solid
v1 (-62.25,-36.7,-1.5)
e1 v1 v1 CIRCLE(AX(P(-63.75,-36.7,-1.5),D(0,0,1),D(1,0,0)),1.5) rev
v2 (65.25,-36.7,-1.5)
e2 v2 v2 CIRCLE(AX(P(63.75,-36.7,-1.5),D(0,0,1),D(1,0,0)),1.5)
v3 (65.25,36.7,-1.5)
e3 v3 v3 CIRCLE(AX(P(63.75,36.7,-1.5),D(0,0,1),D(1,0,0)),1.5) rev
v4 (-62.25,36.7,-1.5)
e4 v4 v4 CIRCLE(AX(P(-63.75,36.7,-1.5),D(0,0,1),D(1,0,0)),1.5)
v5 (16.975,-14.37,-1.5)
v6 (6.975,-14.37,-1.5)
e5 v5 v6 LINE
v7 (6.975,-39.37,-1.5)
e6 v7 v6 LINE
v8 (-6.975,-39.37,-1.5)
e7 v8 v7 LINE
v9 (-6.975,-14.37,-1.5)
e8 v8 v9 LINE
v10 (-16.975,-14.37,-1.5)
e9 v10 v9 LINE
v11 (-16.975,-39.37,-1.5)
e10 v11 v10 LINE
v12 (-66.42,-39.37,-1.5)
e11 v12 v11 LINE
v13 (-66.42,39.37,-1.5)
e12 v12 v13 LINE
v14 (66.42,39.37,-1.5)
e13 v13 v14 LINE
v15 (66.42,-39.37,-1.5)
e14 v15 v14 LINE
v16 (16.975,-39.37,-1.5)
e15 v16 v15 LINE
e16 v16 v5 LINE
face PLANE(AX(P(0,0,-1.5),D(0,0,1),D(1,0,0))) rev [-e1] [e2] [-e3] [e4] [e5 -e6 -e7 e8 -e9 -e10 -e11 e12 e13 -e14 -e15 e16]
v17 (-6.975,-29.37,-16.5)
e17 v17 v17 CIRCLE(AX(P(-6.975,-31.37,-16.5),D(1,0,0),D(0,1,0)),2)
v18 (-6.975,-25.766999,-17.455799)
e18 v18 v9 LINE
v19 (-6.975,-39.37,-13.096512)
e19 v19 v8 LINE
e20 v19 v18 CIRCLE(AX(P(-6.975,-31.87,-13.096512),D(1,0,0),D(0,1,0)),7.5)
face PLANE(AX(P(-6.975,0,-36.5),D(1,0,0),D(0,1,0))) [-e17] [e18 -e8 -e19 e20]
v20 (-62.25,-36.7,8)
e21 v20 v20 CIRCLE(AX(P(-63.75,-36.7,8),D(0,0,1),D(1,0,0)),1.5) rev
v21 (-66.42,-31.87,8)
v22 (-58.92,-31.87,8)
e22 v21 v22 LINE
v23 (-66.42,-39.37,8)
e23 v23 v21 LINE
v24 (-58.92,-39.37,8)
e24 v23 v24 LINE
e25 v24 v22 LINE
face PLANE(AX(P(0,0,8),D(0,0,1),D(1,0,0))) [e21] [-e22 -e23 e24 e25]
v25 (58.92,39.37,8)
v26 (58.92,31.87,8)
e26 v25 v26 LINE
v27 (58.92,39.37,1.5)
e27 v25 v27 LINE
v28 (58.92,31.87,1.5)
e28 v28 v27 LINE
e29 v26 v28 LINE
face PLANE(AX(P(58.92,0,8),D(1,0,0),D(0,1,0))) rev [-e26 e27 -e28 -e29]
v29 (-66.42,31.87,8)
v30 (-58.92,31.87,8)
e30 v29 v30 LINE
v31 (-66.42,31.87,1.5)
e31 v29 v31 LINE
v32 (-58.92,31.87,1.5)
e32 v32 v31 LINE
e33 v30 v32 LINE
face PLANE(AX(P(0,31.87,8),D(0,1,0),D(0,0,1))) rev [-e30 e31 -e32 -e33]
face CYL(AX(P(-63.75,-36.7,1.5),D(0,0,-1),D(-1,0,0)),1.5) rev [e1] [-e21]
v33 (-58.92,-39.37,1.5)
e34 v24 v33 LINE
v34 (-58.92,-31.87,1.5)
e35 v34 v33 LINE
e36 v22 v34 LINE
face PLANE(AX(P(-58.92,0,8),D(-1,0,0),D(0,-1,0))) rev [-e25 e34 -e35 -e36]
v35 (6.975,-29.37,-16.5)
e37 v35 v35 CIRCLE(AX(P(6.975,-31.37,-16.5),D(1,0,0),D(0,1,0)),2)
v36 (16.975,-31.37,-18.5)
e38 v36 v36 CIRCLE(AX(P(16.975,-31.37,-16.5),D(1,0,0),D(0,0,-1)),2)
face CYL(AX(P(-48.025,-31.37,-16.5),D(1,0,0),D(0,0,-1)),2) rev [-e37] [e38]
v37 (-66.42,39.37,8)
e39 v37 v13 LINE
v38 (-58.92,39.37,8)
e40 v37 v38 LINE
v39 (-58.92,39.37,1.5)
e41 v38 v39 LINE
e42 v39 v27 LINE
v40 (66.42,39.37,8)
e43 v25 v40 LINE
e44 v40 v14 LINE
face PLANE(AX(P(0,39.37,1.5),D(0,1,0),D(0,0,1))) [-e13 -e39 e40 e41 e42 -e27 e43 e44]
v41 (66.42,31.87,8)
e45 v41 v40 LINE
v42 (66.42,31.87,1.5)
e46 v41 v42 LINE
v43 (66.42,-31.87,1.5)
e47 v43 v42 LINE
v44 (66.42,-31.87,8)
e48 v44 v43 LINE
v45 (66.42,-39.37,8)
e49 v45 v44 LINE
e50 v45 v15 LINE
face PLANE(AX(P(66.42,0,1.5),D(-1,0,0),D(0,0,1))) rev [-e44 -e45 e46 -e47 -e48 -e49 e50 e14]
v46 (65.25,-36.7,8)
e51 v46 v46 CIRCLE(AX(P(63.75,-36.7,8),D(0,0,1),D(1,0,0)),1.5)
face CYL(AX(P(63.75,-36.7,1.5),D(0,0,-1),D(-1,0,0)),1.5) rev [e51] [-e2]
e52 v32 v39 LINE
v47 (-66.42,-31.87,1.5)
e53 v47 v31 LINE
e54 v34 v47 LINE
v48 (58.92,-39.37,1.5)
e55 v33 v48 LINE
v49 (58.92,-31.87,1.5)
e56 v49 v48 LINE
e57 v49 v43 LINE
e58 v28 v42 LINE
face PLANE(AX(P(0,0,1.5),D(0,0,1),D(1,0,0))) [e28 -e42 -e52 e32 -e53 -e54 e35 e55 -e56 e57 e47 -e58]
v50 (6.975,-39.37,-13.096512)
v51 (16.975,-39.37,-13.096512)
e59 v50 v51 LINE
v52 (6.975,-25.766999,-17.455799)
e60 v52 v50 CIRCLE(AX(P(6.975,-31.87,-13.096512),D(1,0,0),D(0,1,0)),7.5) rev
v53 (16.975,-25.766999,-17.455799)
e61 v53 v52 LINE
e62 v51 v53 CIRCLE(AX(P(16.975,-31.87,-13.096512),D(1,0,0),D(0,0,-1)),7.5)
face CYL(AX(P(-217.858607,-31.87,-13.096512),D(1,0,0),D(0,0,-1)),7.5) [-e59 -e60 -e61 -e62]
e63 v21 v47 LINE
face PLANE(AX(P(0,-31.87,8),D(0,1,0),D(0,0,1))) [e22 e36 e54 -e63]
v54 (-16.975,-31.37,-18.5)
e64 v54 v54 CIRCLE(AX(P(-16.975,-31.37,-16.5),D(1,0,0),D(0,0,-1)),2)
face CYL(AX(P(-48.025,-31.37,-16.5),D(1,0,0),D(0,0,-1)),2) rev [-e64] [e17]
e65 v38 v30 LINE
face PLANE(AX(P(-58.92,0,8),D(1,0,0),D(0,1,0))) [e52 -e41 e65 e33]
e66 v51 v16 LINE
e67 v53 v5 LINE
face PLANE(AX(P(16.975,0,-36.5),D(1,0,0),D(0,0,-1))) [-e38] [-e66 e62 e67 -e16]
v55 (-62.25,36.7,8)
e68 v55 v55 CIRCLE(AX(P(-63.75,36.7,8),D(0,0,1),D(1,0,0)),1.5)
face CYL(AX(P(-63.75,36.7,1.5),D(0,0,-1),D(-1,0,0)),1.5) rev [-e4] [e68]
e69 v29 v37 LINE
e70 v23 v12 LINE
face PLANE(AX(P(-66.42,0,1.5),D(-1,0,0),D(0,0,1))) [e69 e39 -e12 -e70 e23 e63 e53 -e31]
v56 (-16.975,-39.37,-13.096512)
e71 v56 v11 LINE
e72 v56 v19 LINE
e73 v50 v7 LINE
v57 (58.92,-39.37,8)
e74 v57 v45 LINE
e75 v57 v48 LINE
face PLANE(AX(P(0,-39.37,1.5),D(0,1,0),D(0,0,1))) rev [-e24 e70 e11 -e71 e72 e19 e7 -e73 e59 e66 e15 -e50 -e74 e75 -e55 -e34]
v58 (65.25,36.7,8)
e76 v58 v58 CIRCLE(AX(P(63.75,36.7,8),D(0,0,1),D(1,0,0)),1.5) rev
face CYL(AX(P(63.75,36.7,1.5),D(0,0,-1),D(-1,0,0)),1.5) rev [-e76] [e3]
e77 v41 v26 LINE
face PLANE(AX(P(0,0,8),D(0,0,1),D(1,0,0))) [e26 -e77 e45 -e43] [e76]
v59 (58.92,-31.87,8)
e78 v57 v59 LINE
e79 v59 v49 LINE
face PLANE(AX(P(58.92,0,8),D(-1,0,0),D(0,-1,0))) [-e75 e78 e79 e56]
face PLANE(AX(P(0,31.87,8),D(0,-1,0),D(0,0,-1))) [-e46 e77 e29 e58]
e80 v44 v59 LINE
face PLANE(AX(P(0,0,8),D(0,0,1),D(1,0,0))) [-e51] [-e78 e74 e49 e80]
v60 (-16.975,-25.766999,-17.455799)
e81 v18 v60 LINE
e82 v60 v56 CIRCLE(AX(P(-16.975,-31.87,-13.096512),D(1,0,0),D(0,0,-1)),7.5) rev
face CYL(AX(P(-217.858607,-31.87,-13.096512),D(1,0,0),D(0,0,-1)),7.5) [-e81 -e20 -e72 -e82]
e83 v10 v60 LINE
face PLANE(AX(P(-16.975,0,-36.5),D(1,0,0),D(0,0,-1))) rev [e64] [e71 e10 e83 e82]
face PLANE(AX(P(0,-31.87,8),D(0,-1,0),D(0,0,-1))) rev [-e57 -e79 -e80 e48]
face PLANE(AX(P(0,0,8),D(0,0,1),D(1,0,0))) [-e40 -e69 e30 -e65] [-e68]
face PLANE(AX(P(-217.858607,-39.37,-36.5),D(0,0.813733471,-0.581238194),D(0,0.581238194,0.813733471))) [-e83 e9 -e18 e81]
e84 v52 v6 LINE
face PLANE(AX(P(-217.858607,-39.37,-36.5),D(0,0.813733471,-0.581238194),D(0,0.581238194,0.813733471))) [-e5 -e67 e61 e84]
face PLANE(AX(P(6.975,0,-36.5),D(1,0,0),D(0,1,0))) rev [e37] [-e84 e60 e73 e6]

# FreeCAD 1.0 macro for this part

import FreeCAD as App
import Part
import Sketcher

V = App.Vector
Q = App.Units.Quantity


def edges_at(feature, points):
    """Names of the edges that pass closest to the given points."""
    edges = feature.Shape.Edges
    near = lambda p: min(range(len(edges)), key=lambda i: edges[i].distToShape(Part.Vertex(*p))[0])
    return sorted({f"Edge{near(p) + 1}" for p in points})


def add_polygon(sketch, points):
    """Adds a closed chain of lines whose ends are joined by coincident constraints."""
    first, n = sketch.GeometryCount, len(points)
    for a, b in zip(points, points[1:] + points[:1]):
        sketch.addGeometry(Part.LineSegment(App.Vector(*a, 0), App.Vector(*b, 0)), False)
    for i in range(n):
        sketch.addConstraint(Sketcher.Constraint("Coincident", first + i, 2, first + (i + 1) % n, 1))

doc = App.newDocument("Part")
params = doc.addObject("Spreadsheet::Sheet", "Params")
for row, (alias, value) in enumerate([
    ("sketch1_diameter", "3 mm"),
    ("sketch1_width", "132.84 mm"),
    ("sketch1_height", "78.74 mm"),
    ("pad1_length", "3 mm"),
    ("sketch2_diameter", "3 mm"),
    ("sketch2_width", "7.5 mm"),
    ("pad2_length", "8 mm"),
    ("sketch3_width", "10 mm"),
    ("sketch3_height", "25 mm"),
    ("pad3_length", "35 mm"),
    ("sketch4_width", "25 mm"),
    ("sketch4_height", "35 mm"),
    ("sketch5_diameter", "4 mm"),
    ("pocket2_length", "65 mm"),
    ("fillet_radius", "7.5 mm"),
], start=1):
    params.set(f"A{row}", alias)
    params.set(f"B{row}", "=" + value)
    params.setAlias(f"B{row}", alias)

body = doc.addObject("PartDesign::Body", "Body")

# Sketch on XY plane
sketch1 = body.newObject("Sketcher::SketchObject", "Sketch")
sketch1.AttachmentSupport = (doc.getObject("XY_Plane"), [""])
sketch1.MapMode = "FlatFace"
add_polygon(sketch1, [(66.4, -39.4), (66.4, 39.4), (-66.4, 39.4), (-66.4, -39.4)])  # lines 0-3
sketch1.addGeometry(Part.Circle(V(-63.8, -36.7, 0), V(0, 0, 1), 1.5), False)  # 4
sketch1.addGeometry(Part.Circle(V(63.8, -36.7, 0), V(0, 0, 1), 1.5), False)  # 5
sketch1.addGeometry(Part.Circle(V(63.8, 36.7, 0), V(0, 0, 1), 1.5), False)  # 6
sketch1.addGeometry(Part.Circle(V(-63.8, 36.7, 0), V(0, 0, 1), 1.5), False)  # 7
sketch1.addConstraint([
    Sketcher.Constraint("Vertical", 0),
    Sketcher.Constraint("Horizontal", 1),
    Sketcher.Constraint("Vertical", 2),
    Sketcher.Constraint("Horizontal", 3),
    Sketcher.Constraint("Equal", 4, 5),
    Sketcher.Constraint("Equal", 5, 6),
    Sketcher.Constraint("Equal", 6, 7),
    Sketcher.Constraint("Symmetric", 4, 3, 6, 3, -1, 1),
    Sketcher.Constraint("Symmetric", 5, 3, 7, 3, -1, 1),
    Sketcher.Constraint("Symmetric", 0, 2, 2, 2, -1, 1),
    Sketcher.Constraint("Symmetric", 4, 3, 5, 3, -2),
    Sketcher.Constraint("Diameter", 4, Q("3 mm")),
    Sketcher.Constraint("DistanceX", 1, 2, 1, 1, Q("132.84 mm")),
    Sketcher.Constraint("DistanceY", 0, 1, 0, 2, Q("78.74 mm")),
    Sketcher.Constraint("DistanceY", 4, 3, -1, 1, Q("36.7 mm")),
    Sketcher.Constraint("DistanceX", 4, 3, 5, 3, Q("127.5 mm")),
])
sketch1.setExpression("Constraints[15]", "Params.sketch1_diameter")
sketch1.setExpression("Constraints[16]", "Params.sketch1_width")
sketch1.setExpression("Constraints[17]", "Params.sketch1_height")
pad1 = body.newObject("PartDesign::Pad", "Pad")
pad1.Profile = sketch1
pad1.setExpression("Length", "Params.pad1_length")
pad1.Midplane = True

# Sketch on XY plane
sketch2 = body.newObject("Sketcher::SketchObject", "Sketch001")
sketch2.AttachmentSupport = (doc.getObject("XY_Plane"), [""])
sketch2.MapMode = "FlatFace"
add_polygon(sketch2, [(-66.4, -31.9), (-66.4, -39.4), (-58.9, -39.4), (-58.9, -31.9)])  # lines 0-3
sketch2.addGeometry(Part.Circle(V(-63.8, -36.7, 0), V(0, 0, 1), 1.5), False)  # 4
add_polygon(sketch2, [(-66.4, 39.4), (-66.4, 31.9), (-58.9, 31.9), (-58.9, 39.4)])  # lines 5-8
sketch2.addGeometry(Part.Circle(V(-63.8, 36.7, 0), V(0, 0, 1), 1.5), False)  # 9
add_polygon(sketch2, [(58.9, 39.4), (58.9, 31.9), (66.4, 31.9), (66.4, 39.4)])  # lines 10-13
sketch2.addGeometry(Part.Circle(V(63.8, 36.7, 0), V(0, 0, 1), 1.5), False)  # 14
add_polygon(sketch2, [(58.9, -31.9), (58.9, -39.4), (66.4, -39.4), (66.4, -31.9)])  # lines 15-18
sketch2.addGeometry(Part.Circle(V(63.8, -36.7, 0), V(0, 0, 1), 1.5), False)  # 19
sketch2.addConstraint([
    Sketcher.Constraint("Vertical", 0),
    Sketcher.Constraint("Horizontal", 1),
    Sketcher.Constraint("Vertical", 2),
    Sketcher.Constraint("Horizontal", 3),
    Sketcher.Constraint("Vertical", 5),
    Sketcher.Constraint("Horizontal", 6),
    Sketcher.Constraint("Vertical", 7),
    Sketcher.Constraint("Horizontal", 8),
    Sketcher.Constraint("Vertical", 10),
    Sketcher.Constraint("Horizontal", 11),
    Sketcher.Constraint("Vertical", 12),
    Sketcher.Constraint("Horizontal", 13),
    Sketcher.Constraint("Vertical", 15),
    Sketcher.Constraint("Horizontal", 16),
    Sketcher.Constraint("Vertical", 17),
    Sketcher.Constraint("Horizontal", 18),
    Sketcher.Constraint("Equal", 4, 9),
    Sketcher.Constraint("Equal", 9, 14),
    Sketcher.Constraint("Equal", 14, 19),
    Sketcher.Constraint("Symmetric", 4, 3, 14, 3, -1, 1),
    Sketcher.Constraint("Symmetric", 9, 3, 19, 3, -1, 1),
    Sketcher.Constraint("Symmetric", 2, 2, 10, 2, -1, 1),
    Sketcher.Constraint("Symmetric", 0, 2, 12, 2, -1, 1),
    Sketcher.Constraint("Symmetric", 7, 2, 15, 2, -1, 1),
    Sketcher.Constraint("Symmetric", 5, 2, 17, 2, -1, 1),
    Sketcher.Constraint("Symmetric", 9, 3, 14, 3, -2),
    Sketcher.Constraint("Symmetric", 6, 2, 10, 2, -2),
    Sketcher.Constraint("Symmetric", 8, 2, 12, 2, -2),
    Sketcher.Constraint("Equal", 18, 0),
    Sketcher.Constraint("Diameter", 4, Q("3 mm")),
    Sketcher.Constraint("DistanceX", 1, 1, 1, 2, Q("7.5 mm")),
    Sketcher.Constraint("DistanceY", 4, 3, -1, 1, Q("36.7 mm")),
    Sketcher.Constraint("DistanceX", 9, 3, 14, 3, Q("127.5 mm")),
    Sketcher.Constraint("DistanceX", 0, 2, -1, 1, Q("66.42 mm")),
    Sketcher.Constraint("DistanceY", 0, 2, -1, 1, Q("39.37 mm")),
])
sketch2.setExpression("Constraints[45]", "Params.sketch2_diameter")
sketch2.setExpression("Constraints[46]", "Params.sketch2_width")
pad2 = body.newObject("PartDesign::Pad", "Pad001")
pad2.Profile = sketch2
pad2.setExpression("Length", "Params.pad2_length")

# Sketch on XY plane
sketch3 = body.newObject("Sketcher::SketchObject", "Sketch002")
sketch3.AttachmentSupport = (doc.getObject("XY_Plane"), [""])
sketch3.MapMode = "FlatFace"
sketch3.AttachmentOffset = App.Placement(V(0, 0, -1.5), App.Rotation())
add_polygon(sketch3, [(17, -14), (17, -39), (7, -39), (7, -14)])  # lines 0-3
add_polygon(sketch3, [(-7, -14), (-7, -39), (-17, -39), (-17, -14)])  # lines 4-7
sketch3.addConstraint([
    Sketcher.Constraint("Vertical", 0),
    Sketcher.Constraint("Horizontal", 1),
    Sketcher.Constraint("Vertical", 2),
    Sketcher.Constraint("Horizontal", 3),
    Sketcher.Constraint("Vertical", 4),
    Sketcher.Constraint("Horizontal", 5),
    Sketcher.Constraint("Vertical", 6),
    Sketcher.Constraint("Horizontal", 7),
    Sketcher.Constraint("Symmetric", 1, 2, 4, 2, -2),
    Sketcher.Constraint("Symmetric", 3, 2, 6, 2, -2),
    Sketcher.Constraint("DistanceX", 1, 2, 1, 1, Q("10 mm")),
    Sketcher.Constraint("DistanceY", 0, 2, 0, 1, Q("25 mm")),
    Sketcher.Constraint("DistanceY", 0, 2, -1, 1, Q("39.37 mm")),
    Sketcher.Constraint("DistanceX", 4, 2, 1, 2, Q("13.95 mm")),
])
sketch3.setExpression("Constraints[18]", "Params.sketch3_width")
sketch3.setExpression("Constraints[19]", "Params.sketch3_height")
pad3 = body.newObject("PartDesign::Pad", "Pad002")
pad3.Profile = sketch3
pad3.setExpression("Length", "Params.pad3_length")
pad3.Reversed = True

# Sketch on YZ plane
sketch4 = body.newObject("Sketcher::SketchObject", "Sketch003")
sketch4.AttachmentSupport = (doc.getObject("YZ_Plane"), [""])
sketch4.MapMode = "FlatFace"
sketch4.AttachmentOffset = App.Placement(V(0, 0, -16.975), App.Rotation())
add_polygon(sketch4, [(-14, -36), (-39, -36), (-14, -2)])  # lines 0-2
sketch4.addConstraint([
    Sketcher.Constraint("Horizontal", 0),
    Sketcher.Constraint("Vertical", 2),
    Sketcher.Constraint("DistanceX", 0, 2, 0, 1, Q("25 mm")),
    Sketcher.Constraint("DistanceY", 2, 2, 2, 1, Q("35 mm")),
    Sketcher.Constraint("DistanceY", 0, 2, -1, 1, Q("36.5 mm")),
    Sketcher.Constraint("DistanceX", 0, 2, -1, 1, Q("39.37 mm")),
])
sketch4.setExpression("Constraints[5]", "Params.sketch4_width")
sketch4.setExpression("Constraints[6]", "Params.sketch4_height")
pocket1 = body.newObject("PartDesign::Pocket", "Pocket")
pocket1.Profile = sketch4
pocket1.Type = "ThroughAll"
pocket1.Midplane = True

# Sketch on YZ plane
sketch5 = body.newObject("Sketcher::SketchObject", "Sketch004")
sketch5.AttachmentSupport = (doc.getObject("YZ_Plane"), [""])
sketch5.MapMode = "FlatFace"
sketch5.AttachmentOffset = App.Placement(V(0, 0, 16.975), App.Rotation())
sketch5.addGeometry(Part.Circle(V(-31.4, -16.5, 0), V(0, 0, 1), 2), False)
sketch5.addConstraint([
    Sketcher.Constraint("Diameter", 0, Q("4 mm")),
    Sketcher.Constraint("DistanceY", 0, 3, -1, 1, Q("16.5 mm")),
    Sketcher.Constraint("DistanceX", 0, 3, -1, 1, Q("31.37 mm")),
])
sketch5.setExpression("Constraints[0]", "Params.sketch5_diameter")
pocket2 = body.newObject("PartDesign::Pocket", "Pocket001")
pocket2.Profile = sketch5
pocket2.setExpression("Length", "Params.pocket2_length")
doc.recompute()

fillet = body.newObject("PartDesign::Fillet", "Fillet")
fillet.Base = (pocket2, edges_at(pocket2, [(11.975, -39.37, -36.5), (-11.975, -39.37, -36.5)]))
fillet.setExpression("Radius", "Params.fillet_radius")

doc.recompute()
